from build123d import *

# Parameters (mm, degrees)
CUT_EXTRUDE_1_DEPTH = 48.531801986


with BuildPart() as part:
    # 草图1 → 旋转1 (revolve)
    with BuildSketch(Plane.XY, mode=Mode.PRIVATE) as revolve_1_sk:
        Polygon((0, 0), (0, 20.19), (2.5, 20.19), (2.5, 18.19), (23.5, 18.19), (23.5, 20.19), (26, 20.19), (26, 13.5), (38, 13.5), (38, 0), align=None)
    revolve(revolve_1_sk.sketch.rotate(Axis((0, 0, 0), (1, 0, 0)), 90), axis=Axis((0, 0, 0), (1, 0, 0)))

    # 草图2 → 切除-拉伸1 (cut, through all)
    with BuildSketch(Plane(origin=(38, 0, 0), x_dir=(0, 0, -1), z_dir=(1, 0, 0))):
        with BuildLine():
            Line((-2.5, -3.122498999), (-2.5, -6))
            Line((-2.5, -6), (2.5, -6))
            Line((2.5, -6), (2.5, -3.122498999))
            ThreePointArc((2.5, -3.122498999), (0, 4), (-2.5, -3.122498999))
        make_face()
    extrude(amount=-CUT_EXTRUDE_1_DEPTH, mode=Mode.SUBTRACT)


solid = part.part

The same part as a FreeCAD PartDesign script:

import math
import FreeCAD as App
import Part
import Sketcher
from FreeCAD import Vector
Q = App.Units.Quantity


def add_polygon(sketch, points):
    """Adds a closed chain of lines whose ends are joined by coincident constraints."""
    first, n = sketch.GeometryCount, len(points)
    for a, b in zip(points, points[1:] + points[:1]):
        sketch.addGeometry(Part.LineSegment(App.Vector(*a, 0), App.Vector(*b, 0)), False)
    for i in range(n):
        sketch.addConstraint(Sketcher.Constraint("Coincident", first + i, 2, first + (i + 1) % n, 1))

doc = App.newDocument("Part")
params = doc.addObject("Spreadsheet::Sheet", "Params")
for row, (alias, value) in enumerate([
    ("sketch1_width", "38 mm"),
    ("sketch1_width2", "12 mm"),
    ("sketch1_width3", "21 mm"),
    ("sketch1_height", "2 mm"),
    ("sketch1_height2", "13.5 mm"),
    ("revolution_angle", "360 deg"),
    ("sketch2_radius", "4 mm"),
    ("sketch2_height", "5 mm"),
], start=1):
    params.set(f"A{row}", alias)
    params.set(f"B{row}", "=" + value)
    params.setAlias(f"B{row}", alias)

body = doc.addObject("PartDesign::Body", "Body")

sketch1 = body.newObject("Sketcher::SketchObject", "Sketch")
sketch1.AttachmentSupport = (doc.getObject("XY_Plane"), [""])
sketch1.MapMode = "FlatFace"
add_polygon(sketch1, [(0, 20.2), (0, 0), (38, 0), (38, 13.5), (26, 13.5), (26, 20.2), (23.5, 20.2), (23.5, 18.2), (2.5, 18.2), (2.5, 20.2)])
sketch1.addConstraint([
    Sketcher.Constraint("Vertical", 0),
    Sketcher.Constraint("Horizontal", 1),
    Sketcher.Constraint("Vertical", 2),
    Sketcher.Constraint("Horizontal", 3),
    Sketcher.Constraint("Vertical", 4),
    Sketcher.Constraint("Horizontal", 5),
    Sketcher.Constraint("Vertical", 6),
    Sketcher.Constraint("Horizontal", 7),
    Sketcher.Constraint("Vertical", 8),
    Sketcher.Constraint("Horizontal", 9),
    Sketcher.Constraint("Coincident", 0, 2, -1, 1),
    Sketcher.Constraint("Horizontal", 5, 2, 8, 2),
    Sketcher.Constraint("Equal", 5, 9),
    Sketcher.Constraint("DistanceX", 1, 1, 1, 2, Q("38 mm")),
    Sketcher.Constraint("DistanceX", 3, 2, 3, 1, Q("12 mm")),
    Sketcher.Constraint("DistanceX", 7, 2, 7, 1, Q("21 mm")),
    Sketcher.Constraint("DistanceY", 6, 2, 6, 1, Q("2 mm")),
    Sketcher.Constraint("DistanceY", 2, 1, 2, 2, Q("13.5 mm")),
    Sketcher.Constraint("DistanceY", 0, 2, 0, 1, Q("20.19 mm")),
])
sketch1.setExpression("Constraints[23]", "Params.sketch1_width")
sketch1.setExpression("Constraints[24]", "Params.sketch1_width2")
sketch1.setExpression("Constraints[25]", "Params.sketch1_width3")
sketch1.setExpression("Constraints[26]", "Params.sketch1_height")
sketch1.setExpression("Constraints[27]", "Params.sketch1_height2")
revolution = body.newObject("PartDesign::Revolution", "Revolution")
revolution.Profile = sketch1
revolution.ReferenceAxis = (sketch1, ["H_Axis"])
revolution.setExpression("Angle", "Params.revolution_angle")

sketch2 = body.newObject("Sketcher::SketchObject", "Sketch001")
sketch2.AttachmentSupport = (doc.getObject("YZ_Plane"), [""])
sketch2.MapMode = "FlatFace"
sketch2.AttachmentOffset = App.Placement(Vector(0, 0, 38), App.Rotation())
sketch2.addGeometry([
    Part.LineSegment(Vector(-3.1, 2.5, 0), Vector(-6, 2.5, 0)),
    Part.LineSegment(Vector(-6, 2.5, 0), Vector(-6, -2.5, 0)),
    Part.LineSegment(Vector(-6, -2.5, 0), Vector(-3.1, -2.5, 0)),
    Part.ArcOfCircle(Part.Circle(Vector(0, 0, 0), Vector(0, 0, 1), 4), math.radians(-141), math.radians(141)),
], False)
sketch2.addConstraint([
    Sketcher.Constraint("Coincident", 0, 2, 1, 1),
    Sketcher.Constraint("Coincident", 1, 2, 2, 1),
    Sketcher.Constraint("Coincident", 2, 2, 3, 1),
    Sketcher.Constraint("Coincident", 3, 2, 0, 1),
    Sketcher.Constraint("Horizontal", 0),
    Sketcher.Constraint("Vertical", 1),
    Sketcher.Constraint("Horizontal", 2),
    Sketcher.Constraint("Coincident", 3, 3, -1, 1),
    Sketcher.Constraint("Vertical", 2, 2, 3, 2),
    Sketcher.Constraint("Radius", 3, Q("4 mm")),
    Sketcher.Constraint("DistanceY", 1, 2, 1, 1, Q("5 mm")),
    Sketcher.Constraint("DistanceX", 0, 2, -1, 1, Q("6 mm")),
])
sketch2.setExpression("Constraints[9]", "Params.sketch2_radius")
sketch2.setExpression("Constraints[10]", "Params.sketch2_height")
pocket1 = body.newObject("PartDesign::Pocket", "Pocket")
pocket1.Profile = sketch2
pocket1.Type = "ThroughAll"

doc.recompute()
